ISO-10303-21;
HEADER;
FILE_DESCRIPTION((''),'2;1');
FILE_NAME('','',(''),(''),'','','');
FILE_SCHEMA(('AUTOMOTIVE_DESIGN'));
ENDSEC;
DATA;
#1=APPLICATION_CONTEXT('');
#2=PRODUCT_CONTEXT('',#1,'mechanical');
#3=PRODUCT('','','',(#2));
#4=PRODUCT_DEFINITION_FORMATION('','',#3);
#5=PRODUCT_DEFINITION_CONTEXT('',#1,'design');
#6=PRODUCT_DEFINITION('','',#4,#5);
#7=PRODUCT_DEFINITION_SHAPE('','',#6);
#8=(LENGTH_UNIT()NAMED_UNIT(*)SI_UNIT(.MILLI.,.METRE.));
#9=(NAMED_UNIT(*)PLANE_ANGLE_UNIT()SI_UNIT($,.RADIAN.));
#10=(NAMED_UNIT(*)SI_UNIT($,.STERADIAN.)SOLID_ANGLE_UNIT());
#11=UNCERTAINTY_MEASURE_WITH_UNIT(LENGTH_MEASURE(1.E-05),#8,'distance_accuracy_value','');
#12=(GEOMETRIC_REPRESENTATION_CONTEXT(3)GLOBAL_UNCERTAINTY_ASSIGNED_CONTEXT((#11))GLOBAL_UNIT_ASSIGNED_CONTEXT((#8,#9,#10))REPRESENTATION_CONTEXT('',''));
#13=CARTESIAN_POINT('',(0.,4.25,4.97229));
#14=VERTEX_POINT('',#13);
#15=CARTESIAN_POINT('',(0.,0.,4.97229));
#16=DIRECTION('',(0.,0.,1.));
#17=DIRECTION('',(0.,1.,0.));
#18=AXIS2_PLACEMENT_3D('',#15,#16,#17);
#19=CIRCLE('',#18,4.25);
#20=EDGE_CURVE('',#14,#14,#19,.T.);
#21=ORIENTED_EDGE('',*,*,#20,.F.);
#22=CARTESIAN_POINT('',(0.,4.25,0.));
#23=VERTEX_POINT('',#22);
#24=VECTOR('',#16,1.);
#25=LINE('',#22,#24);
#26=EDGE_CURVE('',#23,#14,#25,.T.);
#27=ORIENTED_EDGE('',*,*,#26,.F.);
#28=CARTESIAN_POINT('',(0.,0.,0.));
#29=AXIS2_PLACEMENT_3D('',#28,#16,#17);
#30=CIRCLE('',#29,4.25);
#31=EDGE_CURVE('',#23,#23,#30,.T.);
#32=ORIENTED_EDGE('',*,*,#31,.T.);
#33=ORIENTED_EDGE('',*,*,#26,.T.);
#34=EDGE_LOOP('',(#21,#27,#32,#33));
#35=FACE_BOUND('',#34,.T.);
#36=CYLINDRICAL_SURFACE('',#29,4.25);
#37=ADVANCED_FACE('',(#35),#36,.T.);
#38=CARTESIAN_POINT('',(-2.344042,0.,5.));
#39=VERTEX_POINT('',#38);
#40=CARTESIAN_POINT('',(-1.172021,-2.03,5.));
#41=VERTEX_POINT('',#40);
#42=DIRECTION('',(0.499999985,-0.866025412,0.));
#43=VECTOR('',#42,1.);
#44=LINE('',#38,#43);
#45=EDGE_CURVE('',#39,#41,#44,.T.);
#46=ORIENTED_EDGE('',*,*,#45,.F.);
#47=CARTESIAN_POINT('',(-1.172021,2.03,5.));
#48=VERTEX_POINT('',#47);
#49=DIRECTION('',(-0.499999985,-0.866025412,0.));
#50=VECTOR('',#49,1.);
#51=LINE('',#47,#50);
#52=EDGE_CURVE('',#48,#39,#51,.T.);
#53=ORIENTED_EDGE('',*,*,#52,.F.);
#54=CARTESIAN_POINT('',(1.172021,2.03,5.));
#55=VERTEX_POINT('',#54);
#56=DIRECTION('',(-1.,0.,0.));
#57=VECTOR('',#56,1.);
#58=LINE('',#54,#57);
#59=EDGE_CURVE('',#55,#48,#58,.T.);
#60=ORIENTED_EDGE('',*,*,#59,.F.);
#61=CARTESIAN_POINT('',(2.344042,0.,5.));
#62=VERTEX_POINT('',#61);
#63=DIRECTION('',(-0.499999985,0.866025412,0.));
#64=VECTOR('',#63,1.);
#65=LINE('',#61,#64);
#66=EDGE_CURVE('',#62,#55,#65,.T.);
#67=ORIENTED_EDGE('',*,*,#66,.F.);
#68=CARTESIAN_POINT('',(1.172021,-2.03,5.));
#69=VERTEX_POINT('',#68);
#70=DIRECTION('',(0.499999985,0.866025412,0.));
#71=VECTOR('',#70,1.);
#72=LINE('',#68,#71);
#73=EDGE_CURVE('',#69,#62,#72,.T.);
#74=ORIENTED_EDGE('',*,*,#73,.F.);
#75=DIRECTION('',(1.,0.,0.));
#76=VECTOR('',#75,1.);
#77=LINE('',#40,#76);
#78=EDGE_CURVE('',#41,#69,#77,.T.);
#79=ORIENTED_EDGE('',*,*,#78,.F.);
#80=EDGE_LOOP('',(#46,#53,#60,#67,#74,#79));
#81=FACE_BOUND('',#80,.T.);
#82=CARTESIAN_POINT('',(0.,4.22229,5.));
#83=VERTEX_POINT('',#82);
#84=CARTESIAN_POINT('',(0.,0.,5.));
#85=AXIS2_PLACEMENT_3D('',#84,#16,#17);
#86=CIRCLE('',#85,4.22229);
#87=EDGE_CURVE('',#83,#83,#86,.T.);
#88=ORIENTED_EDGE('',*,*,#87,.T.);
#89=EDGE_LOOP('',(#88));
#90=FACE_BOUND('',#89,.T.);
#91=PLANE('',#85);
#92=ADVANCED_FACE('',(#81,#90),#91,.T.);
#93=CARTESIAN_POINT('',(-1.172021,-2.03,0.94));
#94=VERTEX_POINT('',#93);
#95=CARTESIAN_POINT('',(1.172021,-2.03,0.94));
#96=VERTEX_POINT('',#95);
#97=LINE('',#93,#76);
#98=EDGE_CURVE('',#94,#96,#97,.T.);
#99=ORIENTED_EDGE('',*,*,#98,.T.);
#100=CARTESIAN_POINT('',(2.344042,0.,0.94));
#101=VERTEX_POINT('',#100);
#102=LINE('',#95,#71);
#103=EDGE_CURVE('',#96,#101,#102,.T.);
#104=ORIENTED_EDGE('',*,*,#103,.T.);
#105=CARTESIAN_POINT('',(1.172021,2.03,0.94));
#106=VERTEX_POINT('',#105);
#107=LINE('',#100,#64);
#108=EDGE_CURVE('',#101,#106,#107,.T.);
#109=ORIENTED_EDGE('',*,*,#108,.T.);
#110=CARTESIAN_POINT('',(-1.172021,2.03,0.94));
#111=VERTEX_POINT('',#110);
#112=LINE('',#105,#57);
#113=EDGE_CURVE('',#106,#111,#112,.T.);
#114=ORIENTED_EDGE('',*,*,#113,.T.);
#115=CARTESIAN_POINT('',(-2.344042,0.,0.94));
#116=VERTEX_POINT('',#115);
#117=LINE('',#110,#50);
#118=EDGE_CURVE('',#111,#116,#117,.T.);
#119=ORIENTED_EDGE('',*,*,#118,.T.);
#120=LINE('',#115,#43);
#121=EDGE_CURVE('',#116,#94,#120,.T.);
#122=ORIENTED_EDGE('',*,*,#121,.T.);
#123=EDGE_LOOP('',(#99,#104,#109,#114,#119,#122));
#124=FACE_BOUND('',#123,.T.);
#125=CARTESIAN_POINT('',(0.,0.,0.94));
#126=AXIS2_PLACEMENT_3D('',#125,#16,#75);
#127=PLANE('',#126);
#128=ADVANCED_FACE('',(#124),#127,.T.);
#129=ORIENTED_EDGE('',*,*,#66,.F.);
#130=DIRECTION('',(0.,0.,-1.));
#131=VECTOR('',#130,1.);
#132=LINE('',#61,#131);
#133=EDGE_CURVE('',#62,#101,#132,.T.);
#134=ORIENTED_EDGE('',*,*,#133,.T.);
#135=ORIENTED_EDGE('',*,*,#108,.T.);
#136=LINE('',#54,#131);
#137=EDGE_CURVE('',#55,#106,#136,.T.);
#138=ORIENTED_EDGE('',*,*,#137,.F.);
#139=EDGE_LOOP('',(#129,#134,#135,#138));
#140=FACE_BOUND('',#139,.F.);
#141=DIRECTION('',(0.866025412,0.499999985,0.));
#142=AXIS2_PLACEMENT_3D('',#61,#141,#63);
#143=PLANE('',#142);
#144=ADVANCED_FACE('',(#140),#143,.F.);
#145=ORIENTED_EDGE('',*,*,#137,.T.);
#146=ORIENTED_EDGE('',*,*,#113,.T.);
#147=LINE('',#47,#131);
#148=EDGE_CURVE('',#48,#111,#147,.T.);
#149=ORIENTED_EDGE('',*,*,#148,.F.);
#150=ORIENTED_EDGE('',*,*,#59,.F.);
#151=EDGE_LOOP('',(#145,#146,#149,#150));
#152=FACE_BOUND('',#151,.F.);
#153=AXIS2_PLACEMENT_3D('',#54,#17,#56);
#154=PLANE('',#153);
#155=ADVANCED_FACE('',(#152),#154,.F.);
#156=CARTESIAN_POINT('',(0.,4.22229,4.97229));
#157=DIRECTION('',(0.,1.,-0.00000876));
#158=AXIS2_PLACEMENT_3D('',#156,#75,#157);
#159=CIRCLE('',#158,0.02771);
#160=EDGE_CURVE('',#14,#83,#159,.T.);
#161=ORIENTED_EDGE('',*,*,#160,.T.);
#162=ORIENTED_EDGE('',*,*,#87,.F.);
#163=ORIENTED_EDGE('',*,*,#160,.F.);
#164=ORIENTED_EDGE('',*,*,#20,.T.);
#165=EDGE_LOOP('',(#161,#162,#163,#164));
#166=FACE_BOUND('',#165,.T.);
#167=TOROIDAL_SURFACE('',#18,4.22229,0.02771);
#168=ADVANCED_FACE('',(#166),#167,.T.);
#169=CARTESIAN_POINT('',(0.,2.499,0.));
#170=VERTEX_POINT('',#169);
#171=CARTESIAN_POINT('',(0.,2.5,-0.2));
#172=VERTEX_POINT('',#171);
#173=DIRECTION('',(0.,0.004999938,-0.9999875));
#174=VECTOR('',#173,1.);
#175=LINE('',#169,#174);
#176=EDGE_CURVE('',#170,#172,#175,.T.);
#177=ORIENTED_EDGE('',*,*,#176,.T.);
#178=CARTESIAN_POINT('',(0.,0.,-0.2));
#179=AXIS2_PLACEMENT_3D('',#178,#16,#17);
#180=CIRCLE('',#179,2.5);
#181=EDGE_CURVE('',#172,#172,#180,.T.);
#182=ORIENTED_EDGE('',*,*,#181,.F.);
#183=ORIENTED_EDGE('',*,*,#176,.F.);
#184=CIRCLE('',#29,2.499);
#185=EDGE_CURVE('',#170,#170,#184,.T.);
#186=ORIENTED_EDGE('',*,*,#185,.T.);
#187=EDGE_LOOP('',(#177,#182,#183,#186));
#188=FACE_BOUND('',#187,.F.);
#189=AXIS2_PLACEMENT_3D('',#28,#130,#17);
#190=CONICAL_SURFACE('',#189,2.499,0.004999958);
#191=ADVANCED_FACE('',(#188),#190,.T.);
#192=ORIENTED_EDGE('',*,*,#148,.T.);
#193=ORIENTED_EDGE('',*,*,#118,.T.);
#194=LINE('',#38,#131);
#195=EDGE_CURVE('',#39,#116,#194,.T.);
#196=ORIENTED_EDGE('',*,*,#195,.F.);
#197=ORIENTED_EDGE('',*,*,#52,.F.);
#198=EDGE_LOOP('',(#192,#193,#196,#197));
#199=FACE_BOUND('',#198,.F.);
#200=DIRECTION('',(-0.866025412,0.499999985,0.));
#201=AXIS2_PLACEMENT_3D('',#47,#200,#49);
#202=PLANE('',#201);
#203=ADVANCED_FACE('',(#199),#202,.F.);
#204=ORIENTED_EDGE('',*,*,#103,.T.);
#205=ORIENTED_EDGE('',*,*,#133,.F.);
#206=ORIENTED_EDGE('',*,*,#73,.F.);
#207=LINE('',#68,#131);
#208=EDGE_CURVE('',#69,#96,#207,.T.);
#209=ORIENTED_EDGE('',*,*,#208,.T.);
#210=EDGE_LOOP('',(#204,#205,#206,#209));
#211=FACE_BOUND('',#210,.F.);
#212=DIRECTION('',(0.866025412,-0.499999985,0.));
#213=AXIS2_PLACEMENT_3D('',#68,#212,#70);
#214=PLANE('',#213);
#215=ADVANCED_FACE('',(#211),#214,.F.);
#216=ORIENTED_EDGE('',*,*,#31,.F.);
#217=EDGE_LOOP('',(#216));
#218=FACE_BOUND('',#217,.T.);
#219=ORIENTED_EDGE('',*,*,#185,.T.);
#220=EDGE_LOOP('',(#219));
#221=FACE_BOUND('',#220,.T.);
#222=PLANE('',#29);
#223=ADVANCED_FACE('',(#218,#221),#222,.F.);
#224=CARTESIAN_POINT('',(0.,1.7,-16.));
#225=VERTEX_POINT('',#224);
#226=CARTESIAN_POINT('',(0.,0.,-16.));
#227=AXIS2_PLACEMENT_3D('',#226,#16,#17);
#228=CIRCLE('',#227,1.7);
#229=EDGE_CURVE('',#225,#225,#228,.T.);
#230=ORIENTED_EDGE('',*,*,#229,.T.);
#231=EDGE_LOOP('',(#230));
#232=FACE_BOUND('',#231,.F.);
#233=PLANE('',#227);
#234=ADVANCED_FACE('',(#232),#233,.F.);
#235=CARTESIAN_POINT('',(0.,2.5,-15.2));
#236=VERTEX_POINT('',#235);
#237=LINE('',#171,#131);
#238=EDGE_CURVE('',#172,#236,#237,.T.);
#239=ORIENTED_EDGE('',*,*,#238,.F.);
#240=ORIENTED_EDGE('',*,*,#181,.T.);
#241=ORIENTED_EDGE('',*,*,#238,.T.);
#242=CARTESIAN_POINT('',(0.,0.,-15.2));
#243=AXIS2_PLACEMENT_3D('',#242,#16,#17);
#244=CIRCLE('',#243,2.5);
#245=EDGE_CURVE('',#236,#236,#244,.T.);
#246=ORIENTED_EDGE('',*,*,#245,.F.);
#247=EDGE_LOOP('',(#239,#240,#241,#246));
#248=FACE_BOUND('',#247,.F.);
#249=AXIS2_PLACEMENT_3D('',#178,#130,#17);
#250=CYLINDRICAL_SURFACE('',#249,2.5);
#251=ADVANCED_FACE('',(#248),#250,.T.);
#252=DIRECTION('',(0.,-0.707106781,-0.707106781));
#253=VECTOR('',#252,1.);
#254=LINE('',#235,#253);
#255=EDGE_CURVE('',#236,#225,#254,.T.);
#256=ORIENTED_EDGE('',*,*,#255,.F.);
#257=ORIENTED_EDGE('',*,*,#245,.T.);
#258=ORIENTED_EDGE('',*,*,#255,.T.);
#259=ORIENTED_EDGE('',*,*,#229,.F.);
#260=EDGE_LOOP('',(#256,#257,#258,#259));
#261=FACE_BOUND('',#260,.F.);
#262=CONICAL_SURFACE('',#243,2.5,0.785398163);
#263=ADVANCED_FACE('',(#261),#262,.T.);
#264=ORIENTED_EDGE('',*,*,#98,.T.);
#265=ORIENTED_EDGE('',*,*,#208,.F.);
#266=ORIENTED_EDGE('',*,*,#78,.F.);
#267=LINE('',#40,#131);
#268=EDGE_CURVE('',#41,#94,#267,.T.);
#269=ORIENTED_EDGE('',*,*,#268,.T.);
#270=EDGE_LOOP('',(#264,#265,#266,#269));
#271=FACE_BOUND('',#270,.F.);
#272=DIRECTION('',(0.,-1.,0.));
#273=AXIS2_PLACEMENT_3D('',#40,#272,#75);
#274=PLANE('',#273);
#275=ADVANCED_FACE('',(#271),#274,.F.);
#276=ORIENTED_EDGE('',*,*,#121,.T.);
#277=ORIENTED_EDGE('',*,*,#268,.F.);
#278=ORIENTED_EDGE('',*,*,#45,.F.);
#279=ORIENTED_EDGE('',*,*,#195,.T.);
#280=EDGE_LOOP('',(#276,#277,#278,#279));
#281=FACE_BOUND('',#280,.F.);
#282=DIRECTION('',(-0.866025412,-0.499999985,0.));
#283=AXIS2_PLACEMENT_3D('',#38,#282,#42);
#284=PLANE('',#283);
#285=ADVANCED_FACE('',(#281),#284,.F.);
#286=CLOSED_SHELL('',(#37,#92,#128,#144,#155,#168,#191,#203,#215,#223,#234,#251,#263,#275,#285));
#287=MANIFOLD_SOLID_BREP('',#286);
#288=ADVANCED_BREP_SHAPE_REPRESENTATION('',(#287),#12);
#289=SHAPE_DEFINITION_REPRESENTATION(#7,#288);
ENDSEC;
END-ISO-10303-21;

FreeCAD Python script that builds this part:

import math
import FreeCAD as App
import Part
import Sketcher
from FreeCAD import Vector
Q = App.Units.Quantity


def add_polygon(sketch, points):
    """Adds a closed chain of lines whose ends are joined by coincident constraints."""
    first, n = sketch.GeometryCount, len(points)
    for a, b in zip(points, points[1:] + points[:1]):
        sketch.addGeometry(Part.LineSegment(App.Vector(*a, 0), App.Vector(*b, 0)), False)
    for i in range(n):
        sketch.addConstraint(Sketcher.Constraint("Coincident", first + i, 2, first + (i + 1) % n, 1))

doc = App.newDocument("Part")
body = doc.addObject("PartDesign::Body", "Body")

# Sketch on YZ plane
sketch1 = body.newObject("Sketcher::SketchObject", "Sketch")
sketch1.AttachmentSupport = (doc.getObject("YZ_Plane"), [""])
sketch1.MapMode = "FlatFace"
sketch1.addGeometry([
    Part.LineSegment(Vector(2.499, 0, 0), Vector(4.25, 0, 0)),  # 0
    Part.LineSegment(Vector(4.25, 0, 0), Vector(4.25, 4.972, 0)),  # 1
    Part.ArcOfCircle(Part.Circle(Vector(4.222, 4.972, 0), Vector(0, 0, 1), 0.028), math.radians(0), math.radians(90)),  # 2
    Part.LineSegment(Vector(4.222, 5, 0), Vector(0, 5, 0)),  # 3
    Part.LineSegment(Vector(0, 5, 0), Vector(0, -16, 0)),  # 4
    Part.LineSegment(Vector(0, -16, 0), Vector(1.7, -16, 0)),  # 5
    Part.LineSegment(Vector(1.7, -16, 0), Vector(2.5, -15.2, 0)),  # 6
    Part.LineSegment(Vector(2.5, -15.2, 0), Vector(2.5, -0.2, 0)),  # 7
    Part.LineSegment(Vector(2.5, -0.2, 0), Vector(2.499, 0, 0)),  # 8
], False)
sketch1.addConstraint([
    Sketcher.Constraint("Coincident", 0, 2, 1, 1),
    Sketcher.Constraint("Coincident", 1, 2, 2, 1),
    Sketcher.Constraint("Coincident", 2, 2, 3, 1),
    Sketcher.Constraint("Coincident", 3, 2, 4, 1),
    Sketcher.Constraint("Coincident", 4, 2, 5, 1),
    Sketcher.Constraint("Coincident", 5, 2, 6, 1),
    Sketcher.Constraint("Coincident", 6, 2, 7, 1),
    Sketcher.Constraint("Coincident", 7, 2, 8, 1),
    Sketcher.Constraint("Coincident", 8, 2, 0, 1),
    Sketcher.Constraint("Horizontal", 0),
    Sketcher.Constraint("Vertical", 1),
    Sketcher.Constraint("Horizontal", 3),
    Sketcher.Constraint("Vertical", 4),
    Sketcher.Constraint("Horizontal", 5),
    Sketcher.Constraint("Vertical", 7),
    Sketcher.Constraint("PointOnObject", 0, 2, -1),
    Sketcher.Constraint("PointOnObject", 3, 2, -2),
    Sketcher.Constraint("Horizontal", 2, 3, 1, 2),
    Sketcher.Constraint("DistanceY", 4, 2, 4, 1, Q("21 mm")),
    Sketcher.Constraint("DistanceY", 7, 1, 7, 2, Q("15 mm")),
    Sketcher.Constraint("Angle", 6, Q("45 deg")),
    Sketcher.Constraint("DistanceX", 5, 1, 5, 2, Q("1.7 mm")),
    Sketcher.Constraint("DistanceY", -1, 1, 2, 2, Q("5 mm")),
    Sketcher.Constraint("DistanceX", -1, 1, 6, 2, Q("2.5 mm")),
    Sketcher.Constraint("DistanceX", 0, 1, 0, 2, Q("1.751 mm")),
    Sketcher.Constraint("DistanceX", -1, 1, 0, 2, Q("4.25 mm")),
    Sketcher.Constraint("Radius", 2, Q("0.02771 mm")),
    Sketcher.Constraint("DistanceX", 3, 2, 3, 1, Q("4.22229 mm")),
])
revolution = body.newObject("PartDesign::Revolution", "Revolution")
revolution.Profile = sketch1
revolution.ReferenceAxis = (sketch1, ["V_Axis"])
revolution.Angle = 360

# Sketch on XY plane
sketch2 = body.newObject("Sketcher::SketchObject", "Sketch001")
sketch2.AttachmentSupport = (doc.getObject("XY_Plane"), [""])
sketch2.MapMode = "FlatFace"
sketch2.AttachmentOffset = App.Placement(Vector(0, 0, 5), App.Rotation())
add_polygon(sketch2, [(2.3, 0), (1.2, 2), (-1.2, 2), (-2.3, 0), (-1.2, -2), (1.2, -2)])  # lines 0-5
sketch2.addConstraint([
    Sketcher.Constraint("Horizontal", 1),
    Sketcher.Constraint("Horizontal", 4),
    Sketcher.Constraint("Symmetric", 0, 2, 3, 2, -1, 1),
    Sketcher.Constraint("Symmetric", 2, 2, 5, 2, -1, 1),
    Sketcher.Constraint("PointOnObject", 2, 2, -1),
    Sketcher.Constraint("Parallel", 2, 5),
    Sketcher.Constraint("Vertical", 1, 2, 3, 2),
    Sketcher.Constraint("Angle", 0, Q("119.999999 deg")),
    Sketcher.Constraint("DistanceY", -1, 1, 0, 2, Q("2.03 mm")),
    Sketcher.Constraint("DistanceX", 1, 2, 1, 1, Q("2.344042 mm")),
])
pocket1 = body.newObject("PartDesign::Pocket", "Pocket")
pocket1.Profile = sketch2
pocket1.Length = 4.06

doc.recompute()
